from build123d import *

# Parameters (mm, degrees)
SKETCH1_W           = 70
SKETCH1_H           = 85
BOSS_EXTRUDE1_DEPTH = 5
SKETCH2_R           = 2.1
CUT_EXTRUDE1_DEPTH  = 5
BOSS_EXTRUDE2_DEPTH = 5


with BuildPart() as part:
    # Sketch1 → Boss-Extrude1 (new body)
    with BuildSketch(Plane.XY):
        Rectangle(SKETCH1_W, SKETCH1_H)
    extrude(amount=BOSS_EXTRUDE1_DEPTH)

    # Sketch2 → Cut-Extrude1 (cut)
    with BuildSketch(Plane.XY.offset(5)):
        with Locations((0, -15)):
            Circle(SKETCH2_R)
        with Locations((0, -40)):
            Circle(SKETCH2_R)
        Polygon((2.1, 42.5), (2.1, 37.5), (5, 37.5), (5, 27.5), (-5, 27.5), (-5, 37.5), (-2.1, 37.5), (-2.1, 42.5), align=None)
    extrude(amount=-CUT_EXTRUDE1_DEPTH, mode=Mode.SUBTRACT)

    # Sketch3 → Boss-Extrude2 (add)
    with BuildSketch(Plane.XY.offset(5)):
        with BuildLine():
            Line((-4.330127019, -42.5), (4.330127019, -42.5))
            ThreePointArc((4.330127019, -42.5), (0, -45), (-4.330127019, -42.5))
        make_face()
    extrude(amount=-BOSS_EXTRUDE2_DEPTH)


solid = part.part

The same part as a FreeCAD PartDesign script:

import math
import FreeCAD as App
import Part
import Sketcher

V = App.Vector


def add_polygon(sketch, points):
    """Adds a closed chain of lines whose ends are joined by coincident constraints."""
    first, n = sketch.GeometryCount, len(points)
    for a, b in zip(points, points[1:] + points[:1]):
        sketch.addGeometry(Part.LineSegment(App.Vector(*a, 0), App.Vector(*b, 0)), False)
    for i in range(n):
        sketch.addConstraint(Sketcher.Constraint("Coincident", first + i, 2, first + (i + 1) % n, 1))

doc = App.newDocument("Part")
body = doc.addObject("PartDesign::Body", "Body")

sketch1 = doc.addObject("Sketcher::SketchObject", "Sketch")
body.addObject(sketch1)
sketch1.AttachmentSupport = (doc.XY_Plane, [""])
sketch1.MapMode = "FlatFace"
add_polygon(sketch1, [(-35, 42), (-35, -42), (35, -42), (35, 42)])
sketch1.addConstraint(Sketcher.Constraint("Vertical", 0))
sketch1.addConstraint(Sketcher.Constraint("Horizontal", 1))
sketch1.addConstraint(Sketcher.Constraint("Vertical", 2))
sketch1.addConstraint(Sketcher.Constraint("Horizontal", 3))
sketch1.addConstraint(Sketcher.Constraint("Symmetric", 0, 2, 2, 2, -1, 1))
sketch1.addConstraint(Sketcher.Constraint("DistanceX", 1, 1, 1, 2, 70.0))
sketch1.addConstraint(Sketcher.Constraint("DistanceY", 0, 2, 0, 1, 85.0))
pad1 = doc.addObject("PartDesign::Pad", "Pad")
body.addObject(pad1)
pad1.Profile = sketch1
pad1.Length = 5

sketch2 = doc.addObject("Sketcher::SketchObject", "Sketch001")
body.addObject(sketch2)
sketch2.AttachmentSupport = (doc.XY_Plane, [""])
sketch2.MapMode = "FlatFace"
sketch2.AttachmentOffset = App.Placement(V(0, 0, 5), App.Rotation())
sketch2.addGeometry(Part.Circle(V(0, -15, 0), V(0, 0, 1), 2.1), False)
sketch2.addGeometry(Part.Circle(V(0, -40, 0), V(0, 0, 1), 2.1), False)
add_polygon(sketch2, [(2.1, 37.5), (2.1, 42.5), (-2.1, 42.5), (-2.1, 37.5), (-5, 37.5), (-5, 27.5), (5, 27.5), (5, 37.5)])
sketch2.addConstraint(Sketcher.Constraint("Vertical", 2))
sketch2.addConstraint(Sketcher.Constraint("Horizontal", 3))
sketch2.addConstraint(Sketcher.Constraint("Vertical", 4))
sketch2.addConstraint(Sketcher.Constraint("Horizontal", 5))
sketch2.addConstraint(Sketcher.Constraint("Vertical", 6))
sketch2.addConstraint(Sketcher.Constraint("Horizontal", 7))
sketch2.addConstraint(Sketcher.Constraint("Vertical", 8))
sketch2.addConstraint(Sketcher.Constraint("Horizontal", 9))
sketch2.addConstraint(Sketcher.Constraint("Equal", 0, 1))
sketch2.addConstraint(Sketcher.Constraint("Symmetric", 5, 2, 8, 2, -2))
sketch2.addConstraint(Sketcher.Constraint("PointOnObject", 0, 3, -2))
sketch2.addConstraint(Sketcher.Constraint("PointOnObject", 1, 3, -2))
sketch2.addConstraint(Sketcher.Constraint("Equal", 5, 9))
sketch2.addConstraint(Sketcher.Constraint("Equal", 7, 6))
sketch2.addConstraint(Sketcher.Constraint("Diameter", 0, 4.2))
sketch2.addConstraint(Sketcher.Constraint("DistanceX", 7, 1, 7, 2, 10.0))
sketch2.addConstraint(Sketcher.Constraint("DistanceY", 2, 1, 2, 2, 5.0))
sketch2.addConstraint(Sketcher.Constraint("DistanceX", 3, 2, 3, 1, 4.2))
sketch2.addConstraint(Sketcher.Constraint("DistanceY", 0, 3, -1, 1, 15.0))
sketch2.addConstraint(Sketcher.Constraint("DistanceY", 1, 3, -1, 1, 40.0))
sketch2.addConstraint(Sketcher.Constraint("DistanceY", -1, 1, 2, 2, 42.5))
pocket1 = doc.addObject("PartDesign::Pocket", "Pocket")
body.addObject(pocket1)
pocket1.Profile = sketch2
pocket1.Length = 5

sketch3 = doc.addObject("Sketcher::SketchObject", "Sketch002")
body.addObject(sketch3)
sketch3.AttachmentSupport = (doc.XY_Plane, [""])
sketch3.MapMode = "FlatFace"
sketch3.AttachmentOffset = App.Placement(V(0, 0, 5), App.Rotation())
sketch3.addGeometry(Part.LineSegment(V(4, -42, 0), V(-4, -42, 0)), False)
sketch3.addGeometry(Part.ArcOfCircle(Part.Circle(V(0, -40, 0), V(0, 0, 1), 5), math.radians(-150), math.radians(-30)), False)
sketch3.addConstraint(Sketcher.Constraint("Coincident", 0, 1, 1, 2))
sketch3.addConstraint(Sketcher.Constraint("Coincident", 1, 1, 0, 2))
sketch3.addConstraint(Sketcher.Constraint("Horizontal", 0))
sketch3.addConstraint(Sketcher.Constraint("PointOnObject", 1, 3, -2))
sketch3.addConstraint(Sketcher.Constraint("Radius", 1, 5.0))
sketch3.addConstraint(Sketcher.Constraint("DistanceY", 1, 3, -1, 1, 40.0))
sketch3.addConstraint(Sketcher.Constraint("DistanceY", 0, 1, -1, 1, 42.5))
pad2 = doc.addObject("PartDesign::Pad", "Pad001")
body.addObject(pad2)
pad2.Profile = sketch3
pad2.Length = 5
pad2.Reversed = True

doc.recompute()
